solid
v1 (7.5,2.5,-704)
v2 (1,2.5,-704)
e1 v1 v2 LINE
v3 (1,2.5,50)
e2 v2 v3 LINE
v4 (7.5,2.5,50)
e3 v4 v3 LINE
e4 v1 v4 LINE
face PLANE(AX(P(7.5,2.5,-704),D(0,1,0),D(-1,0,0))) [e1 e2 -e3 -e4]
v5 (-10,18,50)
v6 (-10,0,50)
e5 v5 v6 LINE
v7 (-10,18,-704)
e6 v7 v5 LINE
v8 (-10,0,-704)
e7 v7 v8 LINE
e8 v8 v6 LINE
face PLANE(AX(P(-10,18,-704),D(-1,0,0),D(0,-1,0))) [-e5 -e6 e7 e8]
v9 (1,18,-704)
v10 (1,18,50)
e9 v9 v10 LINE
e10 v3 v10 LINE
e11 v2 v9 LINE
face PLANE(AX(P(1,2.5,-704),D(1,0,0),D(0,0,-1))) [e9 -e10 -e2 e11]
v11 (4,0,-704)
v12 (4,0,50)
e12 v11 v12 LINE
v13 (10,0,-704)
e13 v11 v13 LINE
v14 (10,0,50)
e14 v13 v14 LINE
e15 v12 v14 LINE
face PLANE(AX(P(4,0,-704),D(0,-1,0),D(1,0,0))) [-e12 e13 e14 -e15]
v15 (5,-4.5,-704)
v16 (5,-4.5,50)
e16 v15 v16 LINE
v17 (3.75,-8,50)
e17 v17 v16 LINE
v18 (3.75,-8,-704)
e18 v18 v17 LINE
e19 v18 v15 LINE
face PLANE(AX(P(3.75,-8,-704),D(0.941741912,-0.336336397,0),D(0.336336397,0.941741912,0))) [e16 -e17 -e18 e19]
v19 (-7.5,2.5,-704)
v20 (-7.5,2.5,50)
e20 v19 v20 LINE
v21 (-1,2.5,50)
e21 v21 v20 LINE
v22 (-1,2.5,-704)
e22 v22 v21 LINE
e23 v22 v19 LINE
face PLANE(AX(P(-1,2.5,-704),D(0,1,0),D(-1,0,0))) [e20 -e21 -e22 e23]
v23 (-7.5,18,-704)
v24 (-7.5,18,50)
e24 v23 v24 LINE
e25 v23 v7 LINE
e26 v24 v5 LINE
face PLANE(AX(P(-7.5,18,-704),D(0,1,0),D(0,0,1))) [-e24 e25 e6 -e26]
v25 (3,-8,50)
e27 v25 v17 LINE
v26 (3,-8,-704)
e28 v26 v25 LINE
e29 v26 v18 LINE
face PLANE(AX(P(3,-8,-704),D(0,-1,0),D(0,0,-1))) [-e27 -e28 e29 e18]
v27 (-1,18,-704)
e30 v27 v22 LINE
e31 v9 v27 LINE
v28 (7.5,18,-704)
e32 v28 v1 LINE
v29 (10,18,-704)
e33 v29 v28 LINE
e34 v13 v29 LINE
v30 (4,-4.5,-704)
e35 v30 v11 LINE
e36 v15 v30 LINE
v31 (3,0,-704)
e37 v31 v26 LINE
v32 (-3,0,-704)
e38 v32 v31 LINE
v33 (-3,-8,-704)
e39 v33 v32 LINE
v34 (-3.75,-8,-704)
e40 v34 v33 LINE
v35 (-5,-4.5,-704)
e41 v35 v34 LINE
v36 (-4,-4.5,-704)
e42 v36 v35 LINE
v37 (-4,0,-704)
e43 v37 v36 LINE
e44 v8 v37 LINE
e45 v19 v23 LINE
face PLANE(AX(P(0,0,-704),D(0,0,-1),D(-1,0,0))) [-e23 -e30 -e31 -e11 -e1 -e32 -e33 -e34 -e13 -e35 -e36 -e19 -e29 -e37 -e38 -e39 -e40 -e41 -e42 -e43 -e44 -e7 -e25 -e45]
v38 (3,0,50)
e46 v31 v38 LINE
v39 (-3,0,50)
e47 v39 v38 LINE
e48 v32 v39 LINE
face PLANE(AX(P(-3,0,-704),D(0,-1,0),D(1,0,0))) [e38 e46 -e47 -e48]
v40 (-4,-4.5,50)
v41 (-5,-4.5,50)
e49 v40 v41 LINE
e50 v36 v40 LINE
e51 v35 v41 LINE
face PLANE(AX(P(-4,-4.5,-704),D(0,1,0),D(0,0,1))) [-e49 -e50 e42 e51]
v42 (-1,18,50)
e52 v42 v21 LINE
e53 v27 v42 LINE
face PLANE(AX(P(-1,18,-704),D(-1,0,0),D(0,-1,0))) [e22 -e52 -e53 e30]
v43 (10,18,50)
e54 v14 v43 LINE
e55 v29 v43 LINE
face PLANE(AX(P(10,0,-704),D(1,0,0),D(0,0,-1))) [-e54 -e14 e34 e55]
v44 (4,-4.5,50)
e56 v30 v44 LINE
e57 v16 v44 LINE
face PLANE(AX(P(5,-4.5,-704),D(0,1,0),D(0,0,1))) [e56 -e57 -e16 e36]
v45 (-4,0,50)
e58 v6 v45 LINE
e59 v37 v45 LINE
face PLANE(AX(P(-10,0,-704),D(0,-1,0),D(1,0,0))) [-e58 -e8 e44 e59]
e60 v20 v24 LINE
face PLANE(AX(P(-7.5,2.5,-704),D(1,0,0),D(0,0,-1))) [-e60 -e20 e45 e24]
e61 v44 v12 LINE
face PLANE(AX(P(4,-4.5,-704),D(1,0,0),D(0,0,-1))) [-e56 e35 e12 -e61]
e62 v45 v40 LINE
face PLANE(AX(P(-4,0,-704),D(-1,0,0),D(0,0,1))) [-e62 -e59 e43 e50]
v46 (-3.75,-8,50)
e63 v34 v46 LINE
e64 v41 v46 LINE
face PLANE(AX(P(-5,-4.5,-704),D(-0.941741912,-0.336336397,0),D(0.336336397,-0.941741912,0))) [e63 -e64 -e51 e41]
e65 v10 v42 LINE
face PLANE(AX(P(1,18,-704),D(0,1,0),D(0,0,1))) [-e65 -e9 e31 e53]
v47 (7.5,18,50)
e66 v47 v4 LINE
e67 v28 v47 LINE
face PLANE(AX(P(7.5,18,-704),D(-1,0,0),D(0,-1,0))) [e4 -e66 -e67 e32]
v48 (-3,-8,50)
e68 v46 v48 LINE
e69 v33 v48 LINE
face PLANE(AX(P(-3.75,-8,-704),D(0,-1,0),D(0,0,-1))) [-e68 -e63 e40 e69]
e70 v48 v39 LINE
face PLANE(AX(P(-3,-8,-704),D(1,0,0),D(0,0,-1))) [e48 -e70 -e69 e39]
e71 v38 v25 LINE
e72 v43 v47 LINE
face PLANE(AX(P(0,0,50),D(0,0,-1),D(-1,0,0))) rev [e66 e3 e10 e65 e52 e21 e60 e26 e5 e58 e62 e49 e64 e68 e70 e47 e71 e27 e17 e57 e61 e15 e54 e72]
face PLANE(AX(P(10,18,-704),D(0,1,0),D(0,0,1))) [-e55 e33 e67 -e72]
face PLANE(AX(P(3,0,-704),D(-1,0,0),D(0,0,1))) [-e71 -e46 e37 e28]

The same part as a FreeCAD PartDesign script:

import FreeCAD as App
import Part
import Sketcher
from FreeCAD import Vector
Q = App.Units.Quantity

doc = App.newDocument("Part")
body = doc.addObject("PartDesign::Body", "Body")

# Sketch on XY plane
sketch1 = body.newObject("Sketcher::SketchObject", "Sketch")
sketch1.AttachmentSupport = (doc.getObject("XY_Plane"), [""])
sketch1.MapMode = "FlatFace"
sketch1.AttachmentOffset = App.Placement(Vector(0, 0, 50), App.Rotation())
sketch1.addGeometry([
    Part.LineSegment(Vector(-1, 2.5, 0), Vector(-7.5, 2.5, 0)),  # 0
    Part.LineSegment(Vector(-7.5, 2.5, 0), Vector(-7.5, 18, 0)),  # 1
    Part.LineSegment(Vector(-7.5, 18, 0), Vector(-10, 18, 0)),  # 2
    Part.LineSegment(Vector(-10, 18, 0), Vector(-10, 0, 0)),  # 3
    Part.LineSegment(Vector(-10, 0, 0), Vector(-4, 0, 0)),  # 4
    Part.LineSegment(Vector(-4, 0, 0), Vector(-4, -4.5, 0)),  # 5
    Part.LineSegment(Vector(-4, -4.5, 0), Vector(-5, -4.5, 0)),  # 6
    Part.LineSegment(Vector(-5, -4.5, 0), Vector(-3.8, -8, 0)),  # 7
    Part.LineSegment(Vector(-3.8, -8, 0), Vector(-3, -8, 0)),  # 8
    Part.LineSegment(Vector(-3, -8, 0), Vector(-3, 0, 0)),  # 9
    Part.LineSegment(Vector(-3, 0, 0), Vector(3, 0, 0)),  # 10
    Part.LineSegment(Vector(3, 0, 0), Vector(3, -8, 0)),  # 11
    Part.LineSegment(Vector(3, -8, 0), Vector(3.8, -8, 0)),  # 12
    Part.LineSegment(Vector(3.8, -8, 0), Vector(5, -4.5, 0)),  # 13
    Part.LineSegment(Vector(5, -4.5, 0), Vector(4, -4.5, 0)),  # 14
    Part.LineSegment(Vector(4, -4.5, 0), Vector(4, 0, 0)),  # 15
    Part.LineSegment(Vector(4, 0, 0), Vector(10, 0, 0)),  # 16
    Part.LineSegment(Vector(10, 0, 0), Vector(10, 18, 0)),  # 17
    Part.LineSegment(Vector(10, 18, 0), Vector(7.5, 18, 0)),  # 18
    Part.LineSegment(Vector(7.5, 18, 0), Vector(7.5, 2.5, 0)),  # 19
    Part.LineSegment(Vector(7.5, 2.5, 0), Vector(1, 2.5, 0)),  # 20
    Part.LineSegment(Vector(1, 2.5, 0), Vector(1, 18, 0)),  # 21
    Part.LineSegment(Vector(1, 18, 0), Vector(-1, 18, 0)),  # 22
    Part.LineSegment(Vector(-1, 18, 0), Vector(-1, 2.5, 0)),  # 23
], False)
sketch1.addConstraint([
    Sketcher.Constraint("Coincident", 0, 2, 1, 1),
    Sketcher.Constraint("Coincident", 1, 2, 2, 1),
    Sketcher.Constraint("Coincident", 2, 2, 3, 1),
    Sketcher.Constraint("Coincident", 3, 2, 4, 1),
    Sketcher.Constraint("Coincident", 4, 2, 5, 1),
    Sketcher.Constraint("Coincident", 5, 2, 6, 1),
    Sketcher.Constraint("Coincident", 6, 2, 7, 1),
    Sketcher.Constraint("Coincident", 7, 2, 8, 1),
    Sketcher.Constraint("Coincident", 8, 2, 9, 1),
    Sketcher.Constraint("Coincident", 9, 2, 10, 1),
    Sketcher.Constraint("Coincident", 10, 2, 11, 1),
    Sketcher.Constraint("Coincident", 11, 2, 12, 1),
    Sketcher.Constraint("Coincident", 12, 2, 13, 1),
    Sketcher.Constraint("Coincident", 13, 2, 14, 1),
    Sketcher.Constraint("Coincident", 14, 2, 15, 1),
    Sketcher.Constraint("Coincident", 15, 2, 16, 1),
    Sketcher.Constraint("Coincident", 16, 2, 17, 1),
    Sketcher.Constraint("Coincident", 17, 2, 18, 1),
    Sketcher.Constraint("Coincident", 18, 2, 19, 1),
    Sketcher.Constraint("Coincident", 19, 2, 20, 1),
    Sketcher.Constraint("Coincident", 20, 2, 21, 1),
    Sketcher.Constraint("Coincident", 21, 2, 22, 1),
    Sketcher.Constraint("Coincident", 22, 2, 23, 1),
    Sketcher.Constraint("Coincident", 23, 2, 0, 1),
    Sketcher.Constraint("Horizontal", 0),
    Sketcher.Constraint("Vertical", 1),
    Sketcher.Constraint("Horizontal", 2),
    Sketcher.Constraint("Vertical", 3),
    Sketcher.Constraint("Horizontal", 4),
    Sketcher.Constraint("Vertical", 5),
    Sketcher.Constraint("Horizontal", 6),
    Sketcher.Constraint("Horizontal", 8),
    Sketcher.Constraint("Vertical", 9),
    Sketcher.Constraint("Horizontal", 10),
    Sketcher.Constraint("Vertical", 11),
    Sketcher.Constraint("Horizontal", 12),
    Sketcher.Constraint("Horizontal", 14),
    Sketcher.Constraint("Vertical", 15),
    Sketcher.Constraint("Horizontal", 16),
    Sketcher.Constraint("Vertical", 17),
    Sketcher.Constraint("Horizontal", 18),
    Sketcher.Constraint("Vertical", 19),
    Sketcher.Constraint("Horizontal", 20),
    Sketcher.Constraint("Vertical", 21),
    Sketcher.Constraint("Horizontal", 22),
    Sketcher.Constraint("Vertical", 23),
    Sketcher.Constraint("Symmetric", 9, 2, 10, 2, -1, 1),
    Sketcher.Constraint("Symmetric", 4, 2, 15, 2, -1, 1),
    Sketcher.Constraint("Symmetric", 7, 2, 12, 2, -2),
    Sketcher.Constraint("Symmetric", 6, 2, 13, 2, -2),
    Sketcher.Constraint("Symmetric", 3, 2, 16, 2, -2),
    Sketcher.Constraint("Symmetric", 1, 2, 18, 2, -2),
    Sketcher.Constraint("Symmetric", 20, 2, 23, 2, -2),
    Sketcher.Constraint("Horizontal", 18, 2, 21, 2),
    Sketcher.Constraint("Equal", 4, 10),
    Sketcher.Constraint("DistanceX", 4, 1, 4, 2, Q("6 mm")),
    Sketcher.Constraint("DistanceX", 6, 2, 6, 1, Q("1 mm")),
    Sketcher.Constraint("DistanceX", 22, 2, 22, 1, Q("2 mm")),
    Sketcher.Constraint("DistanceY", 3, 2, 3, 1, Q("18 mm")),
    Sketcher.Constraint("DistanceY", 9, 1, 9, 2, Q("8 mm")),
    Sketcher.Constraint("DistanceX", 0, 2, 0, 1, Q("6.5 mm")),
    Sketcher.Constraint("DistanceX", 2, 2, 2, 1, Q("2.5 mm")),
    Sketcher.Constraint("DistanceY", 1, 1, 1, 2, Q("15.5 mm")),
    Sketcher.Constraint("DistanceY", 5, 2, 5, 1, Q("4.5 mm")),
    Sketcher.Constraint("DistanceX", 8, 1, 8, 2, Q("0.75 mm")),
])
pad1 = body.newObject("PartDesign::Pad", "Pad")
pad1.Profile = sketch1
pad1.Length = 754
pad1.Reversed = True

doc.recompute()
